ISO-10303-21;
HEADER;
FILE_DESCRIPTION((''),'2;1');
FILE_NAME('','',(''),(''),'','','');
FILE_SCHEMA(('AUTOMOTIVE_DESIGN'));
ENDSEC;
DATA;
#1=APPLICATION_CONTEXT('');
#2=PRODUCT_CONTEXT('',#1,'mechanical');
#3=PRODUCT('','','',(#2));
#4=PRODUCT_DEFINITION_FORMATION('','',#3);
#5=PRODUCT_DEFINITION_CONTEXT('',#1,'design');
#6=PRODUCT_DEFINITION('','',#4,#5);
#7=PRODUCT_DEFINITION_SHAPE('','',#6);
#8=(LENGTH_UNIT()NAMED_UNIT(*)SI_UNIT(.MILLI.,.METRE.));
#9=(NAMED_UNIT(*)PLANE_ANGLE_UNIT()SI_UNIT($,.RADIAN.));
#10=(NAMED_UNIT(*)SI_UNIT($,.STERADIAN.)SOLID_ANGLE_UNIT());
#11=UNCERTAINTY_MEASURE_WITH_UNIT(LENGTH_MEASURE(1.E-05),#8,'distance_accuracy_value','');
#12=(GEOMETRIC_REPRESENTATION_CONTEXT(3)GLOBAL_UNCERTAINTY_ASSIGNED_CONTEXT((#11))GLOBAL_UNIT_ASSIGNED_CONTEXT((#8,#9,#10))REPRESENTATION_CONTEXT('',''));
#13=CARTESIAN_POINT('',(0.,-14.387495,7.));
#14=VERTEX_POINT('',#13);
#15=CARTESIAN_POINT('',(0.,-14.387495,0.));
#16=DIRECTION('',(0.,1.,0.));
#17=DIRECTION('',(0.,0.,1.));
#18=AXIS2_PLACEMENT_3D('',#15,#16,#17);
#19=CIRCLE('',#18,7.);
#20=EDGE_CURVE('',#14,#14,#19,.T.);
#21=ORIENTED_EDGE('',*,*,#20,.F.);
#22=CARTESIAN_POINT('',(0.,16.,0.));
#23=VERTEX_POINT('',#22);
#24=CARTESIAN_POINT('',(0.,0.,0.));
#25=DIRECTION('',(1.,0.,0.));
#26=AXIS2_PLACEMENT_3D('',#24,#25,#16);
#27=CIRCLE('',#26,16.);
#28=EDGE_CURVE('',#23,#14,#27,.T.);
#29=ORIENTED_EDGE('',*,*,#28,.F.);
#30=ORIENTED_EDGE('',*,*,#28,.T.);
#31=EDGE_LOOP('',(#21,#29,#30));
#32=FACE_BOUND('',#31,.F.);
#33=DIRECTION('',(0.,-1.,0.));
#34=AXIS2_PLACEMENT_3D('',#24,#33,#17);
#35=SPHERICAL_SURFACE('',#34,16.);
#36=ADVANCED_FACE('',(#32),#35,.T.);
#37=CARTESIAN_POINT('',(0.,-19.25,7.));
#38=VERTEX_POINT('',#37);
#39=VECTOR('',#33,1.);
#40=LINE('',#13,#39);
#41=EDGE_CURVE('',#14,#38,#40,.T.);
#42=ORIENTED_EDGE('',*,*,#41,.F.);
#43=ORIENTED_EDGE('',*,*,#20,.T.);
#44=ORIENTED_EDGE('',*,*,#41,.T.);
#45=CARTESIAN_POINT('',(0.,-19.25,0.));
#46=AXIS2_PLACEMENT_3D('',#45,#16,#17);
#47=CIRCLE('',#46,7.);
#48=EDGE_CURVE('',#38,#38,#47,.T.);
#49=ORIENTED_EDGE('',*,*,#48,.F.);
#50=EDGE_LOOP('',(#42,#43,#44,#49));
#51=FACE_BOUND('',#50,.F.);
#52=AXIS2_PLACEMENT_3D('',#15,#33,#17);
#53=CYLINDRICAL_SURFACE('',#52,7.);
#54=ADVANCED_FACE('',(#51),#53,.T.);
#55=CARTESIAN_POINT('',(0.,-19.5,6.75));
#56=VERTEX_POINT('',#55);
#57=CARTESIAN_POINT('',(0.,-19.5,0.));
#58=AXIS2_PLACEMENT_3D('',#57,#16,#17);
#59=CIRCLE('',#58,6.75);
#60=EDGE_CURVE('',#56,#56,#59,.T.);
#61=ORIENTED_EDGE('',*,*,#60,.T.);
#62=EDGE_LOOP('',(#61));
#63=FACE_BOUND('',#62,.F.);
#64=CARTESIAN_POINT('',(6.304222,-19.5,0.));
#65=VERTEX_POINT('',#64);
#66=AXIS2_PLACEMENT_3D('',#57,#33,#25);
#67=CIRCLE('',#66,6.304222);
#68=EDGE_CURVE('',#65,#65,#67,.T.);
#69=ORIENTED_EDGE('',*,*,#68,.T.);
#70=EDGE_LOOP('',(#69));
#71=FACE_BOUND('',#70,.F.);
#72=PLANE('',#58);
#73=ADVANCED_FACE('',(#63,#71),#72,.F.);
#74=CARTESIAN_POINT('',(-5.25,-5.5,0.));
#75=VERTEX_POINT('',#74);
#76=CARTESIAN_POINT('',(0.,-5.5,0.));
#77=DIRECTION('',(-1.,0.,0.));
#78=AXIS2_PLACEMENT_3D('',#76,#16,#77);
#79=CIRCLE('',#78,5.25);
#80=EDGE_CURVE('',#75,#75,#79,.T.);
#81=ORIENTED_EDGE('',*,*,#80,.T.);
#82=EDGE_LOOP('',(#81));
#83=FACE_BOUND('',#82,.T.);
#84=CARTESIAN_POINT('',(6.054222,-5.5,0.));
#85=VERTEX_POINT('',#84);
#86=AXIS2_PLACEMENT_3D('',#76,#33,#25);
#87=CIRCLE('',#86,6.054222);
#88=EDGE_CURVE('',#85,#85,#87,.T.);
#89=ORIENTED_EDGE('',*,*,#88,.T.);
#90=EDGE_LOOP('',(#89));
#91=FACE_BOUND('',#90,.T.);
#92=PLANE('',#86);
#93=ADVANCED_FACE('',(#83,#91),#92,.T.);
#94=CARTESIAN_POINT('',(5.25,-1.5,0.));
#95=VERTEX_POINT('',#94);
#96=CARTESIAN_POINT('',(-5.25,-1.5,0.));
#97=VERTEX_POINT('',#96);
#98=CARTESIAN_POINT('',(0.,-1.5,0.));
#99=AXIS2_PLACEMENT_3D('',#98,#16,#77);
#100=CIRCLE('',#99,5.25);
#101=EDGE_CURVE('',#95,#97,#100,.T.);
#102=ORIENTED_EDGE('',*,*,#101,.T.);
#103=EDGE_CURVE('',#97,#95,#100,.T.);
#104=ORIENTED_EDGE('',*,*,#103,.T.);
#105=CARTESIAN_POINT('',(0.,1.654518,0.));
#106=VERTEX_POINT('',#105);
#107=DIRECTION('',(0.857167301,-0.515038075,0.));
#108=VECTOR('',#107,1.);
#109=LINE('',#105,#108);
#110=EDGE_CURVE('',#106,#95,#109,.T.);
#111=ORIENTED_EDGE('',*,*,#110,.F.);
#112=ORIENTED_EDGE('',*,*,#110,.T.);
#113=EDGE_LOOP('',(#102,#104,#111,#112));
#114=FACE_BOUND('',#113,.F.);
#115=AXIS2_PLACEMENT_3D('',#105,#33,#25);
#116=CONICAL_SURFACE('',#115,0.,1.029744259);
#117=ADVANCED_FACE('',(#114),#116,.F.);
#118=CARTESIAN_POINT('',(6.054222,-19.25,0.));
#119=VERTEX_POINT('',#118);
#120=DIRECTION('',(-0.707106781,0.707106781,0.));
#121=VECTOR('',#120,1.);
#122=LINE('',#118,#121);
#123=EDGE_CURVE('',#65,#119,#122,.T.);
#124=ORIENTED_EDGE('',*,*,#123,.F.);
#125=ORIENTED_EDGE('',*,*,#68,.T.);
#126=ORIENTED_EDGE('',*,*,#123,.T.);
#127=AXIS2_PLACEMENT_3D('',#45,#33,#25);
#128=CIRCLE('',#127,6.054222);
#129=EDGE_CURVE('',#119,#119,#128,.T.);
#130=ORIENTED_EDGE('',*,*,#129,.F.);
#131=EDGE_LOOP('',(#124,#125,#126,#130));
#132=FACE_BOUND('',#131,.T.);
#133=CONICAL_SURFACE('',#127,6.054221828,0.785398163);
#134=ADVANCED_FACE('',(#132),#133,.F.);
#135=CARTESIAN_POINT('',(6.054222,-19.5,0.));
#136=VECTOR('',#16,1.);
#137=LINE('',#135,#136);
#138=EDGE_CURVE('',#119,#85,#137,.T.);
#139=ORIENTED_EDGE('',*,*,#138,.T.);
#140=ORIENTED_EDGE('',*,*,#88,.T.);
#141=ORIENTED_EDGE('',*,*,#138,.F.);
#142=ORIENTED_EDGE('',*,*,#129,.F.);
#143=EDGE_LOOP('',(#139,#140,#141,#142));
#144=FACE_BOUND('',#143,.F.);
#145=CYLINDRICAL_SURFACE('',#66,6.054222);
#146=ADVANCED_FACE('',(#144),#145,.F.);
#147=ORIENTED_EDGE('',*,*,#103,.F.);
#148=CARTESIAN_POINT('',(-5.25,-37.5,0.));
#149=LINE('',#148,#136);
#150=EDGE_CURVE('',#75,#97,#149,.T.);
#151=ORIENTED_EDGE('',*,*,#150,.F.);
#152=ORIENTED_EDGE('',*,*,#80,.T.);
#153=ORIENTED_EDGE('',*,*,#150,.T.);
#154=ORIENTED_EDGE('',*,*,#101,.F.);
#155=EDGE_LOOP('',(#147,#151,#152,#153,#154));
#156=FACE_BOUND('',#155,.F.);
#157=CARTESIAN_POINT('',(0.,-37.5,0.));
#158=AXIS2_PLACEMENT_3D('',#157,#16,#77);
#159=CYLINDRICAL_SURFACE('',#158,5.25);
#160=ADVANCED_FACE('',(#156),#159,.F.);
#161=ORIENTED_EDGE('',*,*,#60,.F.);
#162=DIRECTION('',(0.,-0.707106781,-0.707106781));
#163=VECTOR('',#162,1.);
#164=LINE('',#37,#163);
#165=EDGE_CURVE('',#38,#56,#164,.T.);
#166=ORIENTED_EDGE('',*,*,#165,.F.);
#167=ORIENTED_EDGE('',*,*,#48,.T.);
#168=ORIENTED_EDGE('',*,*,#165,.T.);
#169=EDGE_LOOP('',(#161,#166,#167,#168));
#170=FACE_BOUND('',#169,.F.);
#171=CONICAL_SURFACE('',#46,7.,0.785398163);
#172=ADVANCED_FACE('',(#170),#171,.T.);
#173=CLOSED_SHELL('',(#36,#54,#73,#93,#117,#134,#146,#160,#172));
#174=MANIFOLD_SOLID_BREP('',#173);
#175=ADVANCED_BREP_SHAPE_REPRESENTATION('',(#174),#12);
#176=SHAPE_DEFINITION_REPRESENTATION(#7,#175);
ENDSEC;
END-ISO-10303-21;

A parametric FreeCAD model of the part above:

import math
import FreeCAD as App
import Part
import Sketcher


def edges_at(feature, points):
    """Names of the edges that pass closest to the given points."""
    edges = feature.Shape.Edges
    near = lambda p: min(range(len(edges)), key=lambda i: edges[i].distToShape(Part.Vertex(*p))[0])
    return sorted({f"Edge{near(p) + 1}" for p in points})

doc = App.newDocument("Part")
body = doc.addObject("PartDesign::Body", "Body")

sketch1 = body.newObject("Sketcher::SketchObject", "Sketch")
sketch1.AttachmentSupport = (doc.getObject("YZ_Plane"), [""])
sketch1.MapMode = "FlatFace"
sketch1.addGeometry([
    Part.ArcOfCircle(Part.Circle(App.Vector(0, 0, 0), App.Vector(0, 0, 1), 16), math.radians(0), math.radians(154.05552)),
    Part.LineSegment(App.Vector(-14.387495, 7, 0), App.Vector(-19.5, 7, 0)),
    Part.LineSegment(App.Vector(-19.5, 7, 0), App.Vector(-19.5, 0, 0)),
    Part.LineSegment(App.Vector(-19.5, 0, 0), App.Vector(16, 0, 0)),
], False)
sketch1.addConstraint([
    Sketcher.Constraint("Coincident", 0, 2, 1, 1),
    Sketcher.Constraint("Coincident", 1, 2, 2, 1),
    Sketcher.Constraint("Coincident", 2, 2, 3, 1),
    Sketcher.Constraint("Coincident", 3, 2, 0, 1),
    Sketcher.Constraint("Horizontal", 1),
    Sketcher.Constraint("Vertical", 2),
    Sketcher.Constraint("Horizontal", 3),
    Sketcher.Constraint("Coincident", 0, 3, -1, 1),
    Sketcher.Constraint("PointOnObject", 2, 2, -1),
    Sketcher.Constraint("Radius", 0, 16.0),
    Sketcher.Constraint("DistanceY", 2, 2, 2, 1, 7.0),
    Sketcher.Constraint("DistanceX", 3, 1, 3, 2, 35.5),
])
revolution = body.newObject("PartDesign::Revolution", "Revolution")
revolution.Profile = sketch1
revolution.ReferenceAxis = (sketch1, ["H_Axis"])
revolution.Angle = 360

sketch2 = body.newObject("Sketcher::SketchObject", "Sketch001")
sketch2.AttachmentSupport = (doc.getObject("XZ_Plane"), [""])
sketch2.MapMode = "FlatFace"
sketch2.AttachmentOffset = App.Placement(App.Vector(0, 0, 19.5), App.Rotation())
sketch2.addGeometry(Part.Circle(App.Vector(0, 0, 0), App.Vector(0, 0, 1), 5.25), False)
sketch2.addConstraint([
    Sketcher.Constraint("Coincident", 0, 3, -1, 1),
    Sketcher.Constraint("Diameter", 0, 10.5),
])
doc.recompute()
hole = body.newObject("PartDesign::Hole", "Hole")
hole.Profile = sketch2
hole.ThreadType = "None"
hole.Diameter = 10.5
hole.DepthType = "Dimension"
hole.Depth = 18
hole.DrillPoint = "Angled"
hole.DrillPointAngle = 118

sketch3 = body.newObject("Sketcher::SketchObject", "Sketch002")
sketch3.AttachmentSupport = (doc.getObject("XZ_Plane"), [""])
sketch3.MapMode = "FlatFace"
sketch3.AttachmentOffset = App.Placement(App.Vector(0, 0, 19.5), App.Rotation())
sketch3.addGeometry(Part.Circle(App.Vector(0, 0, 0), App.Vector(0, 0, 1), 6.054222), False)
sketch3.addConstraint([
    Sketcher.Constraint("Coincident", 0, 3, -1, 1),
    Sketcher.Constraint("Diameter", 0, 12.108444),
])
pocket1 = body.newObject("PartDesign::Pocket", "Pocket")
pocket1.Profile = sketch3
pocket1.Length = 14
doc.recompute()

chamfer = body.newObject("PartDesign::Chamfer", "Chamfer")
chamfer.Base = (pocket1, edges_at(pocket1, [(0, -19.5, -7), (-6.054, -19.5, 0)]))
chamfer.Size = 0.25

doc.recompute()
